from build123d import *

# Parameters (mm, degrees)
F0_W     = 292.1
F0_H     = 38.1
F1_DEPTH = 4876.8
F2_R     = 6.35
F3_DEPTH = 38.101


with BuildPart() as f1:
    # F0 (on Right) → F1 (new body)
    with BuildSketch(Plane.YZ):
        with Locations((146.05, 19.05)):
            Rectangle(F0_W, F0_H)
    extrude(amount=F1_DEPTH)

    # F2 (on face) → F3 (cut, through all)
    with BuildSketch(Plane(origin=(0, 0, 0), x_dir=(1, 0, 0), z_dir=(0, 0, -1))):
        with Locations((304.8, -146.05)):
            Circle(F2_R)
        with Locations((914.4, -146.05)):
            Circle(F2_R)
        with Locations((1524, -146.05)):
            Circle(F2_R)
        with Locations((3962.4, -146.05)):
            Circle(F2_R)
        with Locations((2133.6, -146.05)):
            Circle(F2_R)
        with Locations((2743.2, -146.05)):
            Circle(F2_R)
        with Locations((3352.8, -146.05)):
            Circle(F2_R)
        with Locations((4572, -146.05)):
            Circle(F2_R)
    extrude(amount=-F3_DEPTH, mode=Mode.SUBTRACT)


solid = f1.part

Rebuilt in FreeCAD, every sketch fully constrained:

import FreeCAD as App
import Part
import Sketcher
Q = App.Units.Quantity

doc = App.newDocument("Part")
body = doc.addObject("PartDesign::Body", "Body")

# Sketch on YZ plane
sketch1 = body.newObject("Sketcher::SketchObject", "Sketch")
sketch1.AttachmentSupport = (doc.getObject("YZ_Plane"), [""])
sketch1.MapMode = "FlatFace"
sketch1.addGeometry(Part.LineSegment(App.Vector(0, 38.1, 0), App.Vector(0, 0, 0)), False)
sketch1.addGeometry(Part.LineSegment(App.Vector(0, 0, 0), App.Vector(292.1, 0, 0)), False)
sketch1.addGeometry(Part.LineSegment(App.Vector(292.1, 0, 0), App.Vector(292.1, 38.1, 0)), False)
sketch1.addGeometry(Part.LineSegment(App.Vector(292.1, 38.1, 0), App.Vector(0, 38.1, 0)), False)
sketch1.addConstraint(Sketcher.Constraint("Coincident", 0, 2, 1, 1))
sketch1.addConstraint(Sketcher.Constraint("Coincident", 1, 2, 2, 1))
sketch1.addConstraint(Sketcher.Constraint("Coincident", 2, 2, 3, 1))
sketch1.addConstraint(Sketcher.Constraint("Coincident", 3, 2, 0, 1))
sketch1.addConstraint(Sketcher.Constraint("Vertical", 0))
sketch1.addConstraint(Sketcher.Constraint("Horizontal", 1))
sketch1.addConstraint(Sketcher.Constraint("Vertical", 2))
sketch1.addConstraint(Sketcher.Constraint("Horizontal", 3))
sketch1.addConstraint(Sketcher.Constraint("Coincident", 0, 2, -1, 1))
sketch1.addConstraint(Sketcher.Constraint("DistanceX", 1, 1, 1, 2, Q("11.5 in")))
sketch1.addConstraint(Sketcher.Constraint("DistanceY", 0, 2, 0, 1, Q("1.5 in")))
pad1 = body.newObject("PartDesign::Pad", "Pad")
pad1.Profile = sketch1
pad1.Length = Q("192 in")

# Sketch on XY plane
sketch2 = body.newObject("Sketcher::SketchObject", "Sketch001")
sketch2.AttachmentSupport = (doc.getObject("XY_Plane"), [""])
sketch2.MapMode = "FlatFace"
sketch2.addGeometry(Part.Circle(App.Vector(304.8, 146.05, 0), App.Vector(0, 0, 1), 6.35), False)
sketch2.addGeometry(Part.Circle(App.Vector(914.4, 146.05, 0), App.Vector(0, 0, 1), 6.35), False)
sketch2.addGeometry(Part.Circle(App.Vector(1524, 146.05, 0), App.Vector(0, 0, 1), 6.35), False)
sketch2.addGeometry(Part.Circle(App.Vector(3962.4, 146.05, 0), App.Vector(0, 0, 1), 6.35), False)
sketch2.addGeometry(Part.Circle(App.Vector(2133.6, 146.05, 0), App.Vector(0, 0, 1), 6.35), False)
sketch2.addGeometry(Part.Circle(App.Vector(2743.2, 146.05, 0), App.Vector(0, 0, 1), 6.35), False)
sketch2.addGeometry(Part.Circle(App.Vector(3352.8, 146.05, 0), App.Vector(0, 0, 1), 6.35), False)
sketch2.addGeometry(Part.Circle(App.Vector(4572, 146.05, 0), App.Vector(0, 0, 1), 6.35), False)
sketch2.addConstraint(Sketcher.Constraint("Equal", 0, 1))
sketch2.addConstraint(Sketcher.Constraint("Equal", 1, 2))
sketch2.addConstraint(Sketcher.Constraint("Equal", 2, 3))
sketch2.addConstraint(Sketcher.Constraint("Equal", 3, 4))
sketch2.addConstraint(Sketcher.Constraint("Equal", 4, 5))
sketch2.addConstraint(Sketcher.Constraint("Equal", 5, 6))
sketch2.addConstraint(Sketcher.Constraint("Equal", 6, 7))
sketch2.addConstraint(Sketcher.Constraint("Horizontal", 0, 3, 1, 3))
sketch2.addConstraint(Sketcher.Constraint("Horizontal", 1, 3, 2, 3))
sketch2.addConstraint(Sketcher.Constraint("Horizontal", 2, 3, 3, 3))
sketch2.addConstraint(Sketcher.Constraint("Horizontal", 3, 3, 4, 3))
sketch2.addConstraint(Sketcher.Constraint("Horizontal", 4, 3, 5, 3))
sketch2.addConstraint(Sketcher.Constraint("Horizontal", 5, 3, 6, 3))
sketch2.addConstraint(Sketcher.Constraint("Horizontal", 6, 3, 7, 3))
sketch2.addConstraint(Sketcher.Constraint("Diameter", 0, Q("0.5 in")))
sketch2.addConstraint(Sketcher.Constraint("DistanceX", -1, 1, 0, 3, Q("12 in")))
sketch2.addConstraint(Sketcher.Constraint("DistanceX", -1, 1, 1, 3, Q("36 in")))
sketch2.addConstraint(Sketcher.Constraint("DistanceX", -1, 1, 2, 3, Q("60 in")))
sketch2.addConstraint(Sketcher.Constraint("DistanceX", -1, 1, 3, 3, Q("156 in")))
sketch2.addConstraint(Sketcher.Constraint("DistanceX", -1, 1, 4, 3, Q("84 in")))
sketch2.addConstraint(Sketcher.Constraint("DistanceX", -1, 1, 5, 3, Q("108 in")))
sketch2.addConstraint(Sketcher.Constraint("DistanceX", -1, 1, 6, 3, Q("132 in")))
sketch2.addConstraint(Sketcher.Constraint("DistanceX", -1, 1, 7, 3, Q("180 in")))
sketch2.addConstraint(Sketcher.Constraint("DistanceY", -1, 1, 0, 3, Q("5.75 in")))
pocket1 = body.newObject("PartDesign::Pocket", "Pocket")
pocket1.Profile = sketch2
pocket1.Type = "ThroughAll"
pocket1.Reversed = True

doc.recompute()
